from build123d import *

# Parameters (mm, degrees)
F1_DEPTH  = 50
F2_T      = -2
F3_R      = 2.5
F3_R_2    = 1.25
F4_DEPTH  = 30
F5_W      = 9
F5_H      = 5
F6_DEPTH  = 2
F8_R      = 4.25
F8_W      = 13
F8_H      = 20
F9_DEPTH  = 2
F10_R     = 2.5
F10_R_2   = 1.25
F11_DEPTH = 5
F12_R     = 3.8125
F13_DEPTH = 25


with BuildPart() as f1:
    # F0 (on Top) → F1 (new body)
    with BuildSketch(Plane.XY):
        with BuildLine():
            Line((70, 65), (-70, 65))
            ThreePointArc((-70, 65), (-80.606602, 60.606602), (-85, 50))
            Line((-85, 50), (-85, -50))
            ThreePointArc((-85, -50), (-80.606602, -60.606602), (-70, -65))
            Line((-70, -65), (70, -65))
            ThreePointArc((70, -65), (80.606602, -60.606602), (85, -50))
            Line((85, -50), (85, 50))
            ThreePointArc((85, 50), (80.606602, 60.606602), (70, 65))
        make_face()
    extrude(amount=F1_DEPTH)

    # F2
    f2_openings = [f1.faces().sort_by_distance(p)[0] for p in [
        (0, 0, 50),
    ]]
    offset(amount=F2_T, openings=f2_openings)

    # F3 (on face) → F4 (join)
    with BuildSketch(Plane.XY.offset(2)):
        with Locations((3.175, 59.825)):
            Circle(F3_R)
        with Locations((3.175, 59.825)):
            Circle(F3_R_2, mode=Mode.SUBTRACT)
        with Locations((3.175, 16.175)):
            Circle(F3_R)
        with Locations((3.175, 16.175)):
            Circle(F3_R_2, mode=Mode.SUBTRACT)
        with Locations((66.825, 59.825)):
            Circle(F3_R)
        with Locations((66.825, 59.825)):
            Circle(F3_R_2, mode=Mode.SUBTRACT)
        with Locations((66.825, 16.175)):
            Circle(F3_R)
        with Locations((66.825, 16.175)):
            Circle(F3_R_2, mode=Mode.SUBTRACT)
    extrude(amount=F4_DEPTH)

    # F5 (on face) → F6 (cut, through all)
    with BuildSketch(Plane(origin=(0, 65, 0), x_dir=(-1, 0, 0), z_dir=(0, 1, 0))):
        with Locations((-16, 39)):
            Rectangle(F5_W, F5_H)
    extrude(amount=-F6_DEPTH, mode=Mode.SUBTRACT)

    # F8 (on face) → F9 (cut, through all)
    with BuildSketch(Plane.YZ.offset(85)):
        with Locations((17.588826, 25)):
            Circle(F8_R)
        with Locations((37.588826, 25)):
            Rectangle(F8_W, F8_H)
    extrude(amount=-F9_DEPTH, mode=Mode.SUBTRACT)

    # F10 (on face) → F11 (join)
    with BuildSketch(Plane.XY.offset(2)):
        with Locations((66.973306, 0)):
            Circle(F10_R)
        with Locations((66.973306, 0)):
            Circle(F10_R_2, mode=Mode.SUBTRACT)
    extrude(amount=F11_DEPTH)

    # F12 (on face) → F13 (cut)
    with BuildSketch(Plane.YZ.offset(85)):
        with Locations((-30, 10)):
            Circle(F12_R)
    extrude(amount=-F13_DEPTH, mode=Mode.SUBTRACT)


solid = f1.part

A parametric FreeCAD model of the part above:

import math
import FreeCAD as App
import Part
import Sketcher
Q = App.Units.Quantity


def faces_at(feature, points):
    """Names of the faces that lie closest to the given points."""
    faces = feature.Shape.Faces
    near = lambda p: min(range(len(faces)), key=lambda i: faces[i].distToShape(Part.Vertex(*p))[0])
    return sorted({f"Face{near(p) + 1}" for p in points})


def add_polygon(sketch, points):
    """Adds a closed chain of lines whose ends are joined by coincident constraints."""
    first, n = sketch.GeometryCount, len(points)
    for a, b in zip(points, points[1:] + points[:1]):
        sketch.addGeometry(Part.LineSegment(App.Vector(*a, 0), App.Vector(*b, 0)), False)
    for i in range(n):
        sketch.addConstraint(Sketcher.Constraint("Coincident", first + i, 2, first + (i + 1) % n, 1))

doc = App.newDocument("Part")
params = doc.addObject("Spreadsheet::Sheet", "Params")
for row, (alias, value) in enumerate([
    ("sketch1_radius", "14.999999 mm"),
    ("sketch1_width", "140 mm"),
    ("sketch1_height", "100 mm"),
    ("pad1_length", "50 mm"),
    ("thickness_wall", "2 mm"),
    ("sketch2_diameter", "5 mm"),
    ("sketch2_diameter2", "2.5 mm"),
    ("pad2_length", "30 mm"),
    ("sketch3_width", "9 mm"),
    ("sketch3_height", "5 mm"),
    ("pocket1_length", "2 mm"),
    ("sketch4_diameter", "8.5 mm"),
    ("sketch4_width", "13 mm"),
    ("sketch4_height", "20 mm"),
    ("pocket2_length", "2 mm"),
    ("sketch5_diameter", "5 mm"),
    ("sketch5_diameter2", "2.5 mm"),
    ("pad3_length", "5 mm"),
    ("pocket3_length", "25 mm"),
], start=1):
    params.set(f"A{row}", alias)
    params.set(f"B{row}", "=" + value)
    params.setAlias(f"B{row}", alias)

body = doc.addObject("PartDesign::Body", "Body")

# Sketch on XY plane
sketch1 = body.newObject("Sketcher::SketchObject", "Sketch")
sketch1.AttachmentSupport = (doc.getObject("XY_Plane"), [""])
sketch1.MapMode = "FlatFace"
sketch1.addGeometry([
    Part.LineSegment(App.Vector(70, 65, 0), App.Vector(-70, 65, 0)),  # 0
    Part.ArcOfCircle(Part.Circle(App.Vector(-70, 50, 0), App.Vector(0, 0, 1), 15), math.radians(90), math.radians(180)),  # 1
    Part.LineSegment(App.Vector(-85, 50, 0), App.Vector(-85, -50, 0)),  # 2
    Part.ArcOfCircle(Part.Circle(App.Vector(-70, -50, 0), App.Vector(0, 0, 1), 15), math.radians(180), math.radians(270)),  # 3
    Part.LineSegment(App.Vector(-70, -65, 0), App.Vector(70, -65, 0)),  # 4
    Part.ArcOfCircle(Part.Circle(App.Vector(70, -50, 0), App.Vector(0, 0, 1), 15), math.radians(-90), math.radians(0)),  # 5
    Part.LineSegment(App.Vector(85, -50, 0), App.Vector(85, 50, 0)),  # 6
    Part.ArcOfCircle(Part.Circle(App.Vector(70, 50, 0), App.Vector(0, 0, 1), 15), math.radians(0), math.radians(90)),  # 7
], False)
sketch1.addConstraint([
    Sketcher.Constraint("Tangent", 0, 2, 1, 1),
    Sketcher.Constraint("Tangent", 1, 2, 2, 1),
    Sketcher.Constraint("Tangent", 2, 2, 3, 1),
    Sketcher.Constraint("Tangent", 3, 2, 4, 1),
    Sketcher.Constraint("Tangent", 4, 2, 5, 1),
    Sketcher.Constraint("Tangent", 5, 2, 6, 1),
    Sketcher.Constraint("Tangent", 6, 2, 7, 1),
    Sketcher.Constraint("Tangent", 7, 2, 0, 1),
    Sketcher.Constraint("Horizontal", 0),
    Sketcher.Constraint("Vertical", 2),
    Sketcher.Constraint("Horizontal", 4),
    Sketcher.Constraint("Vertical", 6),
    Sketcher.Constraint("Equal", 1, 3),
    Sketcher.Constraint("Equal", 3, 5),
    Sketcher.Constraint("Equal", 5, 7),
    Sketcher.Constraint("Symmetric", 1, 3, 5, 3, -1, 1),
    Sketcher.Constraint("Radius", 1, Q("14.999999 mm")),
    Sketcher.Constraint("DistanceX", 0, 2, 0, 1, Q("140 mm")),
    Sketcher.Constraint("DistanceY", 2, 2, 2, 1, Q("100 mm")),
])
sketch1.setExpression("Constraints[16]", "Params.sketch1_radius")
sketch1.setExpression("Constraints[17]", "Params.sketch1_width")
sketch1.setExpression("Constraints[18]", "Params.sketch1_height")
pad1 = body.newObject("PartDesign::Pad", "Pad")
pad1.Profile = sketch1
pad1.setExpression("Length", "Params.pad1_length")
doc.recompute()

thickness = body.newObject("PartDesign::Thickness", "Thickness")
thickness.Base = (pad1, faces_at(pad1, [(0, 0, 50)]))
thickness.setExpression("Value", "Params.thickness_wall")
thickness.Reversed = True
thickness.Join = "Arc"

# Sketch on XY plane
sketch2 = body.newObject("Sketcher::SketchObject", "Sketch001")
sketch2.AttachmentSupport = (doc.getObject("XY_Plane"), [""])
sketch2.MapMode = "FlatFace"
sketch2.AttachmentOffset = App.Placement(App.Vector(0, 0, 2), App.Rotation())
sketch2.addGeometry([
    Part.Circle(App.Vector(3.2, 59.8, 0), App.Vector(0, 0, 1), 2.5),  # 0
    Part.Circle(App.Vector(3.2, 59.8, 0), App.Vector(0, 0, 1), 1.2),  # 1
    Part.Circle(App.Vector(3.2, 16.2, 0), App.Vector(0, 0, 1), 2.5),  # 2
    Part.Circle(App.Vector(3.2, 16.2, 0), App.Vector(0, 0, 1), 1.2),  # 3
    Part.Circle(App.Vector(66.8, 59.8, 0), App.Vector(0, 0, 1), 2.5),  # 4
    Part.Circle(App.Vector(66.8, 59.8, 0), App.Vector(0, 0, 1), 1.2),  # 5
    Part.Circle(App.Vector(66.8, 16.2, 0), App.Vector(0, 0, 1), 2.5),  # 6
    Part.Circle(App.Vector(66.8, 16.2, 0), App.Vector(0, 0, 1), 1.2),  # 7
], False)
sketch2.addConstraint([
    Sketcher.Constraint("Coincident", 1, 3, 0, 3),
    Sketcher.Constraint("Coincident", 3, 3, 2, 3),
    Sketcher.Constraint("Coincident", 5, 3, 4, 3),
    Sketcher.Constraint("Coincident", 7, 3, 6, 3),
    Sketcher.Constraint("Equal", 0, 2),
    Sketcher.Constraint("Equal", 1, 3),
    Sketcher.Constraint("Equal", 2, 4),
    Sketcher.Constraint("Equal", 3, 5),
    Sketcher.Constraint("Equal", 4, 6),
    Sketcher.Constraint("Equal", 5, 7),
    Sketcher.Constraint("Horizontal", 1, 3, 4, 3),
    Sketcher.Constraint("Horizontal", 3, 3, 6, 3),
    Sketcher.Constraint("Vertical", 1, 3, 2, 3),
    Sketcher.Constraint("Vertical", 5, 3, 6, 3),
    Sketcher.Constraint("Diameter", 0, Q("5 mm")),
    Sketcher.Constraint("Diameter", 1, Q("2.5 mm")),
    Sketcher.Constraint("DistanceY", 2, 3, 0, 3, Q("43.65 mm")),
    Sketcher.Constraint("DistanceX", 0, 3, 4, 3, Q("63.65 mm")),
    Sketcher.Constraint("DistanceX", -1, 1, 0, 3, Q("3.175 mm")),
    Sketcher.Constraint("DistanceY", -1, 1, 0, 3, Q("59.825 mm")),
])
sketch2.setExpression("Constraints[14]", "Params.sketch2_diameter")
sketch2.setExpression("Constraints[15]", "Params.sketch2_diameter2")
pad2 = body.newObject("PartDesign::Pad", "Pad001")
pad2.Profile = sketch2
pad2.setExpression("Length", "Params.pad2_length")

# Sketch on XZ plane
sketch3 = body.newObject("Sketcher::SketchObject", "Sketch002")
sketch3.AttachmentSupport = (doc.getObject("XZ_Plane"), [""])
sketch3.MapMode = "FlatFace"
sketch3.AttachmentOffset = App.Placement(App.Vector(0, 0, -65), App.Rotation())
add_polygon(sketch3, [(20, 42), (20, 36), (12, 36), (12, 42)])  # lines 0-3
sketch3.addConstraint([
    Sketcher.Constraint("Vertical", 0),
    Sketcher.Constraint("Horizontal", 1),
    Sketcher.Constraint("Vertical", 2),
    Sketcher.Constraint("Horizontal", 3),
    Sketcher.Constraint("DistanceX", 1, 2, 1, 1, Q("9 mm")),
    Sketcher.Constraint("DistanceY", 0, 2, 0, 1, Q("5 mm")),
    Sketcher.Constraint("DistanceX", -1, 1, 0, 2, Q("20.5 mm")),
    Sketcher.Constraint("DistanceY", -1, 1, 0, 2, Q("36.5 mm")),
])
sketch3.setExpression("Constraints[8]", "Params.sketch3_width")
sketch3.setExpression("Constraints[9]", "Params.sketch3_height")
pocket1 = body.newObject("PartDesign::Pocket", "Pocket")
pocket1.Profile = sketch3
pocket1.setExpression("Length", "Params.pocket1_length")
pocket1.Reversed = True

# Sketch on YZ plane
sketch4 = body.newObject("Sketcher::SketchObject", "Sketch003")
sketch4.AttachmentSupport = (doc.getObject("YZ_Plane"), [""])
sketch4.MapMode = "FlatFace"
sketch4.AttachmentOffset = App.Placement(App.Vector(0, 0, 85), App.Rotation())
sketch4.addGeometry(Part.Circle(App.Vector(17.6, 25, 0), App.Vector(0, 0, 1), 4.2), False)  # 0
add_polygon(sketch4, [(31.1, 35), (31.1, 15), (44.1, 15), (44.1, 35)])  # lines 1-4
sketch4.addConstraint([
    Sketcher.Constraint("Vertical", 1),
    Sketcher.Constraint("Horizontal", 2),
    Sketcher.Constraint("Vertical", 3),
    Sketcher.Constraint("Horizontal", 4),
    Sketcher.Constraint("Diameter", 0, Q("8.5 mm")),
    Sketcher.Constraint("DistanceX", 2, 1, 2, 2, Q("13 mm")),
    Sketcher.Constraint("DistanceY", 1, 2, 1, 1, Q("20 mm")),
    Sketcher.Constraint("DistanceY", -1, 1, 0, 3, Q("25 mm")),
    Sketcher.Constraint("DistanceY", -1, 1, 1, 2, Q("15 mm")),
    Sketcher.Constraint("DistanceX", 0, 3, 1, 2, Q("13.5 mm")),
    Sketcher.Constraint("DistanceX", -1, 1, 0, 3, Q("17.588826 mm")),
])
sketch4.setExpression("Constraints[8]", "Params.sketch4_diameter")
sketch4.setExpression("Constraints[9]", "Params.sketch4_width")
sketch4.setExpression("Constraints[10]", "Params.sketch4_height")
pocket2 = body.newObject("PartDesign::Pocket", "Pocket001")
pocket2.Profile = sketch4
pocket2.setExpression("Length", "Params.pocket2_length")

# Sketch on XY plane
sketch5 = body.newObject("Sketcher::SketchObject", "Sketch004")
sketch5.AttachmentSupport = (doc.getObject("XY_Plane"), [""])
sketch5.MapMode = "FlatFace"
sketch5.AttachmentOffset = App.Placement(App.Vector(0, 0, 2), App.Rotation())
sketch5.addGeometry([
    Part.Circle(App.Vector(67, 0, 0), App.Vector(0, 0, 1), 2.5),
    Part.Circle(App.Vector(67, 0, 0), App.Vector(0, 0, 1), 1.2),
], False)
sketch5.addConstraint([
    Sketcher.Constraint("Coincident", 1, 3, 0, 3),
    Sketcher.Constraint("PointOnObject", 0, 3, -1),
    Sketcher.Constraint("Diameter", 0, Q("5 mm")),
    Sketcher.Constraint("Diameter", 1, Q("2.5 mm")),
    Sketcher.Constraint("DistanceX", -1, 1, 0, 3, Q("66.973306 mm")),
])
sketch5.setExpression("Constraints[2]", "Params.sketch5_diameter")
sketch5.setExpression("Constraints[3]", "Params.sketch5_diameter2")
pad3 = body.newObject("PartDesign::Pad", "Pad002")
pad3.Profile = sketch5
pad3.setExpression("Length", "Params.pad3_length")

# Sketch on YZ plane
sketch6 = body.newObject("Sketcher::SketchObject", "Sketch005")
sketch6.AttachmentSupport = (doc.getObject("YZ_Plane"), [""])
sketch6.MapMode = "FlatFace"
sketch6.AttachmentOffset = App.Placement(App.Vector(0, 0, 85), App.Rotation())
sketch6.addGeometry(Part.Circle(App.Vector(-30, 10, 0), App.Vector(0, 0, 1), 3.8), False)
sketch6.addConstraint([
    Sketcher.Constraint("Diameter", 0, Q("7.625 mm")),
    Sketcher.Constraint("DistanceX", 0, 3, -1, 1, Q("30 mm")),
    Sketcher.Constraint("DistanceY", -1, 1, 0, 3, Q("10 mm")),
])
pocket3 = body.newObject("PartDesign::Pocket", "Pocket002")
pocket3.Profile = sketch6
pocket3.setExpression("Length", "Params.pocket3_length")

doc.recompute()
